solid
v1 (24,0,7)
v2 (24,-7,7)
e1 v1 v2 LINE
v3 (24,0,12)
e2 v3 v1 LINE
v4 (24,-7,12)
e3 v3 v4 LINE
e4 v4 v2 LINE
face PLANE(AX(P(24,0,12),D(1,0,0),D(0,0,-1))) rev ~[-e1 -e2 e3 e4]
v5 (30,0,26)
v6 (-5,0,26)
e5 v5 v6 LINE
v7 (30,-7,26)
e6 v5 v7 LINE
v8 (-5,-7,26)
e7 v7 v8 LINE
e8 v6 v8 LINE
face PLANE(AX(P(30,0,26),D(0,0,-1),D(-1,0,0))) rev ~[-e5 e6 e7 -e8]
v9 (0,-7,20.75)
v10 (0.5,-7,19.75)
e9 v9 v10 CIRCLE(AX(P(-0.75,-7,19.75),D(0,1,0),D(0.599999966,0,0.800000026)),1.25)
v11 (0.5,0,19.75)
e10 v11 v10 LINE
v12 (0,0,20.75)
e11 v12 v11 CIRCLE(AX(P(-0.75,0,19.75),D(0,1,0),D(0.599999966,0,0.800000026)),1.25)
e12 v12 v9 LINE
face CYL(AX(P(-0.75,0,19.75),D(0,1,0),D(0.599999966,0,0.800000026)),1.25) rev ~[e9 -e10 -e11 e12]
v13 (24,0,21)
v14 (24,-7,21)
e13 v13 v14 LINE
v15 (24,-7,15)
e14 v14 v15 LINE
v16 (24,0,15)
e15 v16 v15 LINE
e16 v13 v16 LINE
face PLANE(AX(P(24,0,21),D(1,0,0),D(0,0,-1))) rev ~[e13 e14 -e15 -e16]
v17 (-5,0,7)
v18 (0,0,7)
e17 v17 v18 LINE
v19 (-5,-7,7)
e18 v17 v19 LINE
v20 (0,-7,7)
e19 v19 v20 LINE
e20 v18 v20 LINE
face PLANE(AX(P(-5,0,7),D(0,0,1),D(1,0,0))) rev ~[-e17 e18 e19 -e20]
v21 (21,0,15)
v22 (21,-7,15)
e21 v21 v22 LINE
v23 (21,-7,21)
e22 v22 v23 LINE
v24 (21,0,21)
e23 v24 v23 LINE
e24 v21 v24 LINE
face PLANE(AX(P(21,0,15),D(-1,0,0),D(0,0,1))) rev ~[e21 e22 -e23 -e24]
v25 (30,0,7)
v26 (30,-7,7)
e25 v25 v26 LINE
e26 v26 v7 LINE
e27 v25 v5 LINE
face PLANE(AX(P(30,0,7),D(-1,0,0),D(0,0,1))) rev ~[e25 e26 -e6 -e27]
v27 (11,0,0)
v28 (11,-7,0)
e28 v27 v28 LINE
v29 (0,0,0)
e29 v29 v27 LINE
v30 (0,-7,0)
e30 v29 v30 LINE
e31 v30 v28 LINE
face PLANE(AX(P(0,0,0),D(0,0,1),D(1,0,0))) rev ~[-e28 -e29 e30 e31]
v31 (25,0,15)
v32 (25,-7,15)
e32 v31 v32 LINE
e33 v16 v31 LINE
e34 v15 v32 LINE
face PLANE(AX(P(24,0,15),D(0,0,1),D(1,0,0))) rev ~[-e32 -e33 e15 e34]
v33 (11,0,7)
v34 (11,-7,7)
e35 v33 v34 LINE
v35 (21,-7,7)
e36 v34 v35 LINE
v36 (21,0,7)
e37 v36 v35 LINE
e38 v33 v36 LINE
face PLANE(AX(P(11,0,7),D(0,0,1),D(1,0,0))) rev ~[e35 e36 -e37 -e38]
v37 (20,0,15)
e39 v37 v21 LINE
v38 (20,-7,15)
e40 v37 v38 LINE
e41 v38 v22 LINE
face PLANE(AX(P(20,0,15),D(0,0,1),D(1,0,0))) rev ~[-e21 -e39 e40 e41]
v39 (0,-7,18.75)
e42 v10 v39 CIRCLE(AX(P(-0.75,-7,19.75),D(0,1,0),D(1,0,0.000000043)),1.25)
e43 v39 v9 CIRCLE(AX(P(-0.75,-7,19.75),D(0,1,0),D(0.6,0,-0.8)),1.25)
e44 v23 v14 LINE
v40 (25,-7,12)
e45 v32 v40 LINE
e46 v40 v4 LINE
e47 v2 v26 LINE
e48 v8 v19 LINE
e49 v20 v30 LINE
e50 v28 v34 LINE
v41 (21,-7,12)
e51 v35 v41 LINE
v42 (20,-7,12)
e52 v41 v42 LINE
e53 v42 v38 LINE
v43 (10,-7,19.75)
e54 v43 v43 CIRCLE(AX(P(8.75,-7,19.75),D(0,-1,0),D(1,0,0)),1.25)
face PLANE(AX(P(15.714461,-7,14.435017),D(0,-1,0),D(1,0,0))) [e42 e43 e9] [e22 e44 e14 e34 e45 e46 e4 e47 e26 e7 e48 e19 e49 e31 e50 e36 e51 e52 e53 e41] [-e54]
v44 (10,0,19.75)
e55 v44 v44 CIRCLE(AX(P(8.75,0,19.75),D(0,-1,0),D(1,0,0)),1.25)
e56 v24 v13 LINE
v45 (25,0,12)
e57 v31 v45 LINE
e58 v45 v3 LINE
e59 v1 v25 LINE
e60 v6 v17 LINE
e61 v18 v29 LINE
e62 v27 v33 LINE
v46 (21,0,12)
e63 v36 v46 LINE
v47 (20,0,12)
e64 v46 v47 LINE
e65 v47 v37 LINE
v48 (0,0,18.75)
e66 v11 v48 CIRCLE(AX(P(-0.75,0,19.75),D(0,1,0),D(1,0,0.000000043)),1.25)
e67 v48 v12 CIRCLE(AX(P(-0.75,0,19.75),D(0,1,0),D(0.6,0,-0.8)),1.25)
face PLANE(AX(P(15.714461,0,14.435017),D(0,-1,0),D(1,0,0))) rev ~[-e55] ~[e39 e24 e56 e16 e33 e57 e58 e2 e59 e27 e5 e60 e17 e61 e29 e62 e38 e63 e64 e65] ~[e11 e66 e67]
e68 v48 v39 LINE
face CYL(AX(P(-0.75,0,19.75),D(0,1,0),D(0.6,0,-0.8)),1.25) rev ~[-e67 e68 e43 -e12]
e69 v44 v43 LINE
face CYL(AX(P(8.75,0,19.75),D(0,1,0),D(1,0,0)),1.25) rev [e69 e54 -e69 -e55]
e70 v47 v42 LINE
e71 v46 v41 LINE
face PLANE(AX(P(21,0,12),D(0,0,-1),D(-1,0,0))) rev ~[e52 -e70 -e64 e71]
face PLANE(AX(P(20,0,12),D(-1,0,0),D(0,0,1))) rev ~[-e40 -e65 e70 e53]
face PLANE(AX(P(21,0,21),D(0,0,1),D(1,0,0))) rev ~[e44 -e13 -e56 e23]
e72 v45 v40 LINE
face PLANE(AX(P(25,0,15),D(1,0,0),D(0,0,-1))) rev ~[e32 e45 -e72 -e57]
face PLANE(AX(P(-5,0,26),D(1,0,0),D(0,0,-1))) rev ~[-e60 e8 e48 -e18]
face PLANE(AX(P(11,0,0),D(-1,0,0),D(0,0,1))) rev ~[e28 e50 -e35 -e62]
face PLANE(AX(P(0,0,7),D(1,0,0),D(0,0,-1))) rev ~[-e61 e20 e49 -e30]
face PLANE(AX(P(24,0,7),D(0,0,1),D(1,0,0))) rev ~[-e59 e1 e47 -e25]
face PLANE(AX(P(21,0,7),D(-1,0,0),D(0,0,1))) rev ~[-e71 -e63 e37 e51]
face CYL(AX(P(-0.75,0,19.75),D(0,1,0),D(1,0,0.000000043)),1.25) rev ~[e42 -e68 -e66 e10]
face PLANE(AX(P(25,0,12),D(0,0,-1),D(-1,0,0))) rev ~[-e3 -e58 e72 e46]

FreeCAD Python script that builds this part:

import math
import FreeCAD as App
import Part
import Sketcher
from FreeCAD import Vector
Q = App.Units.Quantity


def add_polygon(sketch, points):
    """Adds a closed chain of lines whose ends are joined by coincident constraints."""
    first, n = sketch.GeometryCount, len(points)
    for a, b in zip(points, points[1:] + points[:1]):
        sketch.addGeometry(Part.LineSegment(App.Vector(*a, 0), App.Vector(*b, 0)), False)
    for i in range(n):
        sketch.addConstraint(Sketcher.Constraint("Coincident", first + i, 2, first + (i + 1) % n, 1))

doc = App.newDocument("Part")
params = doc.addObject("Spreadsheet::Sheet", "Params")
for row, (alias, value) in enumerate([
    ("sketch1_diameter", "2.5 mm"),
    ("sketch1_width", "11 mm"),
    ("sketch1_width2", "10 mm"),
    ("sketch1_width3", "1 mm"),
    ("sketch1_width4", "3 mm"),
    ("pad1_length", "7 mm"),
], start=1):
    params.set(f"A{row}", alias)
    params.set(f"B{row}", "=" + value)
    params.setAlias(f"B{row}", alias)

body = doc.addObject("PartDesign::Body", "Body")

# Sketch on XZ plane
sketch1 = body.newObject("Sketcher::SketchObject", "Sketch")
sketch1.AttachmentSupport = (doc.getObject("XZ_Plane"), [""])
sketch1.MapMode = "FlatFace"
add_polygon(sketch1, [(0, 0), (11, 0), (11, 7), (21, 7), (21, 12), (20, 12), (20, 15), (21, 15), (21, 21), (24, 21), (24, 15), (25, 15), (25, 12), (24, 12), (24, 7), (30, 7), (30, 26), (-5, 26), (-5, 7), (0, 7)])  # lines 0-19
sketch1.addGeometry(Part.ArcOfCircle(Part.Circle(Vector(-0.75, 19.75, 0), Vector(0, 0, 1), 1.25), math.radians(-53.130105), math.radians(0.000002)), False)  # 20
sketch1.addGeometry(Part.ArcOfCircle(Part.Circle(Vector(-0.75, 19.75, 0), Vector(0, 0, 1), 1.25), math.radians(53.130102), math.radians(306.869898)), False)  # 21
sketch1.addGeometry(Part.ArcOfCircle(Part.Circle(Vector(-0.75, 19.75, 0), Vector(0, 0, 1), 1.25), math.radians(-0.000002), math.radians(53.130105)), False)  # 22
sketch1.addGeometry(Part.Circle(Vector(8.75, 19.75, 0), Vector(0, 0, 1), 1.25), False)  # 23
sketch1.addConstraint([
    Sketcher.Constraint("Tangent", 20, 1, 21, 2),
    Sketcher.Constraint("Tangent", 21, 1, 22, 2),
    Sketcher.Constraint("Tangent", 22, 1, 20, 2),
    Sketcher.Constraint("Horizontal", 0),
    Sketcher.Constraint("Vertical", 1),
    Sketcher.Constraint("Horizontal", 2),
    Sketcher.Constraint("Vertical", 3),
    Sketcher.Constraint("Horizontal", 4),
    Sketcher.Constraint("Vertical", 5),
    Sketcher.Constraint("Horizontal", 6),
    Sketcher.Constraint("Vertical", 7),
    Sketcher.Constraint("Horizontal", 8),
    Sketcher.Constraint("Vertical", 9),
    Sketcher.Constraint("Horizontal", 10),
    Sketcher.Constraint("Vertical", 11),
    Sketcher.Constraint("Horizontal", 12),
    Sketcher.Constraint("Vertical", 13),
    Sketcher.Constraint("Horizontal", 14),
    Sketcher.Constraint("Vertical", 15),
    Sketcher.Constraint("Horizontal", 16),
    Sketcher.Constraint("Vertical", 17),
    Sketcher.Constraint("Horizontal", 18),
    Sketcher.Constraint("Vertical", 19),
    Sketcher.Constraint("Coincident", 19, 2, -1, 1),
    Sketcher.Constraint("Equal", 22, 23),
    Sketcher.Constraint("PointOnObject", 20, 1, -2),
    Sketcher.Constraint("PointOnObject", 21, 1, -2),
    Sketcher.Constraint("Horizontal", 22, 3, 23, 3),
    Sketcher.Constraint("Horizontal", 6, 2, 9, 2),
    Sketcher.Constraint("Horizontal", 4, 2, 11, 2),
    Sketcher.Constraint("Horizontal", 2, 2, 13, 2),
    Sketcher.Constraint("Horizontal", 14, 2, 17, 2),
    Sketcher.Constraint("Horizontal", 23, 3, 22, 1),
    Sketcher.Constraint("Vertical", 3, 2, 6, 2),
    Sketcher.Constraint("Vertical", 9, 2, 12, 2),
    Sketcher.Constraint("Equal", 6, 10),
    Sketcher.Constraint("Equal", 18, 3),
    Sketcher.Constraint("Equal", 8, 5),
    Sketcher.Constraint("Equal", 14, 7),
    Sketcher.Constraint("Diameter", 23, Q("2.5 mm")),
    Sketcher.Constraint("DistanceX", 0, 1, 0, 2, Q("11 mm")),
    Sketcher.Constraint("DistanceX", 2, 1, 2, 2, Q("10 mm")),
    Sketcher.Constraint("DistanceX", 4, 2, 4, 1, Q("1 mm")),
    Sketcher.Constraint("DistanceX", 8, 1, 8, 2, Q("3 mm")),
    Sketcher.Constraint("DistanceX", 14, 1, 14, 2, Q("6 mm")),
    Sketcher.Constraint("DistanceX", 16, 2, 16, 1, Q("35 mm")),
    Sketcher.Constraint("DistanceY", 1, 1, 1, 2, Q("7 mm")),
    Sketcher.Constraint("DistanceY", 15, 1, 15, 2, Q("19 mm")),
    Sketcher.Constraint("DistanceY", 20, 1, 20, 3, Q("1 mm")),
    Sketcher.Constraint("DistanceX", 20, 3, 23, 3, Q("9.5 mm")),
    Sketcher.Constraint("DistanceY", -1, 1, 20, 3, Q("19.75 mm")),
])
sketch1.setExpression("Constraints[59]", "Params.sketch1_diameter")
sketch1.setExpression("Constraints[60]", "Params.sketch1_width")
sketch1.setExpression("Constraints[61]", "Params.sketch1_width2")
sketch1.setExpression("Constraints[62]", "Params.sketch1_width3")
sketch1.setExpression("Constraints[63]", "Params.sketch1_width4")
pad1 = body.newObject("PartDesign::Pad", "Pad")
pad1.Profile = sketch1
pad1.setExpression("Length", "Params.pad1_length")

doc.recompute()
